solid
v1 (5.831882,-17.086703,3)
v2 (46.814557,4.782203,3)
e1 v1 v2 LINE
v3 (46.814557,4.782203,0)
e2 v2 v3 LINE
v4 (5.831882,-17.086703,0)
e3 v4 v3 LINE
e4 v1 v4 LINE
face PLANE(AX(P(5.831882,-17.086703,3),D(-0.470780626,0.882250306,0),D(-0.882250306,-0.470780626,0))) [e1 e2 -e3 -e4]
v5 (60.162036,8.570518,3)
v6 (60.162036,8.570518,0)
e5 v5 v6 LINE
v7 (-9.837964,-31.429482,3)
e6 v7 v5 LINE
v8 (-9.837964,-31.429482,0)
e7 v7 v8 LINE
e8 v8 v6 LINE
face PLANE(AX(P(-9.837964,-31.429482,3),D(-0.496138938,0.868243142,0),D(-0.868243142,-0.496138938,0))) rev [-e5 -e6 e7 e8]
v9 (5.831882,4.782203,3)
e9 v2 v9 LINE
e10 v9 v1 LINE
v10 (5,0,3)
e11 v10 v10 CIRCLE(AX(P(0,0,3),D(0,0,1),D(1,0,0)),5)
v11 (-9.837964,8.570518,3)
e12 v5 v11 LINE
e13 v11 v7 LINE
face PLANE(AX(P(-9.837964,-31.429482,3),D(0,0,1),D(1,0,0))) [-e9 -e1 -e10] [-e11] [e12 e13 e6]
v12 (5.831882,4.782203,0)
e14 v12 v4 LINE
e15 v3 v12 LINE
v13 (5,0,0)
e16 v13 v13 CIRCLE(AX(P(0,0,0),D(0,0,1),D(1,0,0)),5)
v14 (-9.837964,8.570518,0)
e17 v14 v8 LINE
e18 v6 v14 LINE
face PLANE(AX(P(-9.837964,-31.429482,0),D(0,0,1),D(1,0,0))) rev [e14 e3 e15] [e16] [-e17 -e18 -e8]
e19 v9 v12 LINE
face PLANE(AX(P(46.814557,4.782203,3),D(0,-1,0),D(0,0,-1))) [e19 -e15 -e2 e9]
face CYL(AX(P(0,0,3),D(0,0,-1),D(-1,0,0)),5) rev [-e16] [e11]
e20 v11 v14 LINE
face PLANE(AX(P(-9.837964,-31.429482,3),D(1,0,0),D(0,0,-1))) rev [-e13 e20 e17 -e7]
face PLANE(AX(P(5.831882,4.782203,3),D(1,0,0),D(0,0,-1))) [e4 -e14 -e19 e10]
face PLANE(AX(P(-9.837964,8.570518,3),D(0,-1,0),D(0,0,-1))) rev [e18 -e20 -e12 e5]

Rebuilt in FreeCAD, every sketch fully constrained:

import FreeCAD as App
import Part
import Sketcher
from FreeCAD import Vector

doc = App.newDocument("Part")
body = doc.addObject("PartDesign::Body", "Body")

# Sketch on XY plane
sketch1 = body.newObject("Sketcher::SketchObject", "Sketch")
sketch1.AttachmentSupport = (doc.getObject("XY_Plane"), [""])
sketch1.MapMode = "FlatFace"
sketch1.addGeometry([
    Part.LineSegment(Vector(60, 9, 0), Vector(-10, 9, 0)),  # 0
    Part.LineSegment(Vector(-10, 9, 0), Vector(-10, -31, 0)),  # 1
    Part.LineSegment(Vector(-10, -31, 0), Vector(60, 9, 0)),  # 2
    Part.LineSegment(Vector(6, 5, 0), Vector(47, 5, 0)),  # 3
    Part.LineSegment(Vector(47, 5, 0), Vector(6, -17, 0)),  # 4
    Part.LineSegment(Vector(6, -17, 0), Vector(6, 5, 0)),  # 5
    Part.Circle(Vector(0, 0, 0), Vector(0, 0, 1), 5),  # 6
], False)
sketch1.addConstraint([
    Sketcher.Constraint("Coincident", 0, 2, 1, 1),
    Sketcher.Constraint("Coincident", 1, 2, 2, 1),
    Sketcher.Constraint("Coincident", 2, 2, 0, 1),
    Sketcher.Constraint("Coincident", 3, 2, 4, 1),
    Sketcher.Constraint("Coincident", 4, 2, 5, 1),
    Sketcher.Constraint("Coincident", 5, 2, 3, 1),
    Sketcher.Constraint("Horizontal", 0),
    Sketcher.Constraint("Vertical", 1),
    Sketcher.Constraint("Horizontal", 3),
    Sketcher.Constraint("Vertical", 5),
    Sketcher.Constraint("Coincident", 6, 3, -1, 1),
    Sketcher.Constraint("Diameter", 6, 10.0),
    Sketcher.Constraint("DistanceX", 0, 2, 0, 1, 70.0),
    Sketcher.Constraint("DistanceY", 1, 2, 1, 1, 40.0),
    Sketcher.Constraint("DistanceX", 3, 1, 3, 2, 40.982674),
    Sketcher.Constraint("DistanceY", 5, 1, 5, 2, 21.868906),
    Sketcher.Constraint("DistanceX", 3, 2, 2, 2, 13.34748),
    Sketcher.Constraint("DistanceY", 1, 2, 4, 2, 14.34278),
    Sketcher.Constraint("DistanceX", 0, 2, -1, 1, 9.837964),
    Sketcher.Constraint("DistanceY", -1, 1, 0, 2, 8.570518),
])
pad1 = body.newObject("PartDesign::Pad", "Pad")
pad1.Profile = sketch1
pad1.Length = 3

doc.recompute()
